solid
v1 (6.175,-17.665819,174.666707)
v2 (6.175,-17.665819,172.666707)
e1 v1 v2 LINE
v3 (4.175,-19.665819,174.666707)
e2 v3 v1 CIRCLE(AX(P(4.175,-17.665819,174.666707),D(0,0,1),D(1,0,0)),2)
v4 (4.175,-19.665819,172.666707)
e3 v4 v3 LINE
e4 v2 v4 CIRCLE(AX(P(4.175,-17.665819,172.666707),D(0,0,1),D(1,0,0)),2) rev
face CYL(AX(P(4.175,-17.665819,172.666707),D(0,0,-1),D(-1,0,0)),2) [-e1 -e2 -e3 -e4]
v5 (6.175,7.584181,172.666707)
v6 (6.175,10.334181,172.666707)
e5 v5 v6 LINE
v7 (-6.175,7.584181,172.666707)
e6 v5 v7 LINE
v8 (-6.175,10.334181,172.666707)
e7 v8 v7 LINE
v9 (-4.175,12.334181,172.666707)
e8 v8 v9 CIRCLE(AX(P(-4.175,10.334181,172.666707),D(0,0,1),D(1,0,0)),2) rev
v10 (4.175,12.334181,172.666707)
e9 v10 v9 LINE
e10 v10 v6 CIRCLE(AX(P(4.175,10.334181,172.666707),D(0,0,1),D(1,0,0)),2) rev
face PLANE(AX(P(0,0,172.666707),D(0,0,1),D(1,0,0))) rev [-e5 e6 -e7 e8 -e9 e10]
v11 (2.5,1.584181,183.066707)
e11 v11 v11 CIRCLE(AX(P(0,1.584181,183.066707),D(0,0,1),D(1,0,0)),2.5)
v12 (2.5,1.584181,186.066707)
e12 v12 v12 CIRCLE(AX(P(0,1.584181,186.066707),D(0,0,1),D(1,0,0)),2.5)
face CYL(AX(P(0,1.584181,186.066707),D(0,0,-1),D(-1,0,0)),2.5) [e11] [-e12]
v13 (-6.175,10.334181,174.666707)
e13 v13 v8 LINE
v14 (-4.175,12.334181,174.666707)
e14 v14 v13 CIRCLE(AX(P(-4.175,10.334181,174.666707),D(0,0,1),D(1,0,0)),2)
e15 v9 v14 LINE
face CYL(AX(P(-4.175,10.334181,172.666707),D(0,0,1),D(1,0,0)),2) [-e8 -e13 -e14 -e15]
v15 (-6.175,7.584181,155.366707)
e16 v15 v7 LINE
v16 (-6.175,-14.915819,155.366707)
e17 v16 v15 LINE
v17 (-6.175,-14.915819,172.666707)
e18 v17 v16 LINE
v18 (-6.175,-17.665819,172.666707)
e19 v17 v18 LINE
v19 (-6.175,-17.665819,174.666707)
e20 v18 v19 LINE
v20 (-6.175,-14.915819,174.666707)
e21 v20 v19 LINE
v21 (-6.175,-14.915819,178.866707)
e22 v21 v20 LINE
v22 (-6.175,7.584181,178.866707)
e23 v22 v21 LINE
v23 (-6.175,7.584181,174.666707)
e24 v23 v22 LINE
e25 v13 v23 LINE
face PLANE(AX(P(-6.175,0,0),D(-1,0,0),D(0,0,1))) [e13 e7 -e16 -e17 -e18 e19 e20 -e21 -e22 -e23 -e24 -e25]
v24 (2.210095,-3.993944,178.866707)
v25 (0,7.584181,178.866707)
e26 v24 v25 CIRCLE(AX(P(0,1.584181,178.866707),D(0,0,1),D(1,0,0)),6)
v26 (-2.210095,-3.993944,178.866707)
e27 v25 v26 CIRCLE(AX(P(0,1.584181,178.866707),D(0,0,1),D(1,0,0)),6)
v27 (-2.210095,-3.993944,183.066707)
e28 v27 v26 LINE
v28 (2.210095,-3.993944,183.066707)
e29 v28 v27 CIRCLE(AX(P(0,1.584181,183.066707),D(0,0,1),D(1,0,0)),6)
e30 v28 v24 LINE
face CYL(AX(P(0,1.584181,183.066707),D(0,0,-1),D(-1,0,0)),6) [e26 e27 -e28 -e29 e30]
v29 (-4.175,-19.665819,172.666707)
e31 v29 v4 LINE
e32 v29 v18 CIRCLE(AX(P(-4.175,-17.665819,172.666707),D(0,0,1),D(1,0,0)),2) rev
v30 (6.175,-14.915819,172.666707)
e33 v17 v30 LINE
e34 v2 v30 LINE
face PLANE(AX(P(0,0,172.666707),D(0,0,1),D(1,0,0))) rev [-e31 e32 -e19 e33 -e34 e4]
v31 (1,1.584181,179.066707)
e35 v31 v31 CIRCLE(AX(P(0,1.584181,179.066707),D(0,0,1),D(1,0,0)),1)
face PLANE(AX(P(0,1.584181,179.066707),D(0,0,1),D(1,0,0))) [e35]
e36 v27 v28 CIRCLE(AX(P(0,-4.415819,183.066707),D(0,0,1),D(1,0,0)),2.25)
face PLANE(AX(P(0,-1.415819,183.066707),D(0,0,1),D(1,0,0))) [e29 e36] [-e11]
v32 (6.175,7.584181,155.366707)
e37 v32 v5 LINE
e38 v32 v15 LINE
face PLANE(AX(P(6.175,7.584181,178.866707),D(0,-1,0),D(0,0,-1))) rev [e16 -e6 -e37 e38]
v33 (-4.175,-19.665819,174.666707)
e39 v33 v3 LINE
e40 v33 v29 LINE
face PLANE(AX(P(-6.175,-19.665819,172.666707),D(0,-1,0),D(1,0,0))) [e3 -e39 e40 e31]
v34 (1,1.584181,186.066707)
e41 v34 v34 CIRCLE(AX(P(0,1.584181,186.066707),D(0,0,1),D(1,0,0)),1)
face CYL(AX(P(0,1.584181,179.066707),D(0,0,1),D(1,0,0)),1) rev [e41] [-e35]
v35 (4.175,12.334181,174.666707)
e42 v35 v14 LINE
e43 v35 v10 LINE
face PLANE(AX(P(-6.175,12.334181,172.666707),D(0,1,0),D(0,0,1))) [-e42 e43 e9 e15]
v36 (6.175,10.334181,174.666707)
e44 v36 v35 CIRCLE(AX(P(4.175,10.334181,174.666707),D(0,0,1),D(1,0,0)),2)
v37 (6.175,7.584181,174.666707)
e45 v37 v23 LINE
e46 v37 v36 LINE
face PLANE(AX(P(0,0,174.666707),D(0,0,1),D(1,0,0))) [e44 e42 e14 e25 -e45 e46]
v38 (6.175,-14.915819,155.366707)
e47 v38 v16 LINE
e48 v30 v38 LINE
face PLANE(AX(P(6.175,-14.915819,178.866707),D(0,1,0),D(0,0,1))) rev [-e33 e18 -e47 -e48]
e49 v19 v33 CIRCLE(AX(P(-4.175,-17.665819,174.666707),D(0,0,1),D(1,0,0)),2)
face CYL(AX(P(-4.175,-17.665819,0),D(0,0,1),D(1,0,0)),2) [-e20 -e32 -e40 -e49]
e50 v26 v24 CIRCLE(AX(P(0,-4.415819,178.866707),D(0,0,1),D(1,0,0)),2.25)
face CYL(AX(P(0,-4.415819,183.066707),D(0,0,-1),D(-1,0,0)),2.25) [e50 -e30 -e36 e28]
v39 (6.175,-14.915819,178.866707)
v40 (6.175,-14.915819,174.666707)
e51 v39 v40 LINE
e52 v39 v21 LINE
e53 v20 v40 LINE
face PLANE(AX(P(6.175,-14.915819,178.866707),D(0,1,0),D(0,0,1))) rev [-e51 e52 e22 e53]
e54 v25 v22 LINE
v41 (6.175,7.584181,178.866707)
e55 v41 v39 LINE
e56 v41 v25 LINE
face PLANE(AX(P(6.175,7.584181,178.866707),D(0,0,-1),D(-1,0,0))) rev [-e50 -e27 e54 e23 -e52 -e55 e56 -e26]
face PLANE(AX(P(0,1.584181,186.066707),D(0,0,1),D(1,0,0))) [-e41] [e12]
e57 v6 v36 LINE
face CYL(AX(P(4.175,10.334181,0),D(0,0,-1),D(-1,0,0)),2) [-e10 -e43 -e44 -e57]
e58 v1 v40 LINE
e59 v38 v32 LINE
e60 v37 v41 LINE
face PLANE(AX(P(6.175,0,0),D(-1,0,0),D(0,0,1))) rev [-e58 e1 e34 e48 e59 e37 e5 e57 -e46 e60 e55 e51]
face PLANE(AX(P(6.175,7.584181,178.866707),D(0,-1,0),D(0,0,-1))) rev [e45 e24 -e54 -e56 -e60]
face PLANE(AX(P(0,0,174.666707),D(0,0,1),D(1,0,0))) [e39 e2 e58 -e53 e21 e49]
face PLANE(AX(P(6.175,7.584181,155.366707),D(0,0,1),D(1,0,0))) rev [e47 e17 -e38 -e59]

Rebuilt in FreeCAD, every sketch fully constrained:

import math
import FreeCAD as App
import Part
import Sketcher
from FreeCAD import Vector
Q = App.Units.Quantity


def edges_at(feature, points):
    """Names of the edges that pass closest to the given points."""
    edges = feature.Shape.Edges
    near = lambda p: min(range(len(edges)), key=lambda i: edges[i].distToShape(Part.Vertex(*p))[0])
    return sorted({f"Edge{near(p) + 1}" for p in points})


def add_polygon(sketch, points):
    """Adds a closed chain of lines whose ends are joined by coincident constraints."""
    first, n = sketch.GeometryCount, len(points)
    for a, b in zip(points, points[1:] + points[:1]):
        sketch.addGeometry(Part.LineSegment(App.Vector(*a, 0), App.Vector(*b, 0)), False)
    for i in range(n):
        sketch.addConstraint(Sketcher.Constraint("Coincident", first + i, 2, first + (i + 1) % n, 1))

doc = App.newDocument("Part")
body = doc.addObject("PartDesign::Body", "Body")

sketch1 = body.newObject("Sketcher::SketchObject", "Sketch")
sketch1.AttachmentSupport = (doc.getObject("YZ_Plane"), [""])
sketch1.MapMode = "FlatFace"
add_polygon(sketch1, [(-14.915819, 178.866707), (-14.915819, 155.366707), (7.584181, 155.366707), (7.584181, 178.866707)])
sketch1.addConstraint([
    Sketcher.Constraint("Vertical", 0),
    Sketcher.Constraint("Horizontal", 1),
    Sketcher.Constraint("Vertical", 2),
    Sketcher.Constraint("Horizontal", 3),
    Sketcher.Constraint("DistanceX", 1, 1, 1, 2, Q("22.5 mm")),
    Sketcher.Constraint("DistanceY", 0, 2, 0, 1, Q("23.5 mm")),
    Sketcher.Constraint("DistanceX", 0, 2, -1, 1, Q("14.915819 mm")),
    Sketcher.Constraint("DistanceY", -1, 1, 0, 2, Q("155.366707 mm")),
])
pad1 = body.newObject("PartDesign::Pad", "Pad")
pad1.Profile = sketch1
pad1.Length = 12.35
pad1.Midplane = True

sketch2 = body.newObject("Sketcher::SketchObject", "Sketch001")
sketch2.AttachmentSupport = (doc.getObject("XY_Plane"), [""])
sketch2.MapMode = "FlatFace"
sketch2.AttachmentOffset = App.Placement(Vector(0, 0, 174.666707), App.Rotation())
add_polygon(sketch2, [(-6.175, 12.334181), (-6.175, -19.665819), (6.175, -19.665819), (6.175, 12.334181)])
sketch2.addConstraint([
    Sketcher.Constraint("Vertical", 0),
    Sketcher.Constraint("Horizontal", 1),
    Sketcher.Constraint("Vertical", 2),
    Sketcher.Constraint("Horizontal", 3),
    Sketcher.Constraint("DistanceY", 0, 2, 0, 1, Q("32 mm")),
    Sketcher.Constraint("DistanceX", 1, 1, 1, 2, Q("12.35 mm")),
    Sketcher.Constraint("DistanceX", 0, 2, -1, 1, Q("6.175 mm")),
    Sketcher.Constraint("DistanceY", 0, 2, -1, 1, Q("19.665819 mm")),
])
pad2 = body.newObject("PartDesign::Pad", "Pad001")
pad2.Profile = sketch2
pad2.Length = 2
pad2.Reversed = True

sketch3 = body.newObject("Sketcher::SketchObject", "Sketch002")
sketch3.AttachmentSupport = (doc.getObject("XY_Plane"), [""])
sketch3.MapMode = "FlatFace"
sketch3.AttachmentOffset = App.Placement(Vector(0, 0, 178.866707), App.Rotation())
sketch3.addGeometry([
    Part.ArcOfCircle(Part.Circle(Vector(0, 1.584181, 0), Vector(0, 0, 1), 6), math.radians(-68.386154), math.radians(248.386154)),
    Part.ArcOfCircle(Part.Circle(Vector(0, -4.415819, 0), Vector(0, 0, 1), 2.25), math.radians(169.193077), math.radians(370.806923)),
], False)
sketch3.addConstraint([
    Sketcher.Constraint("Coincident", 0, 1, 1, 2),
    Sketcher.Constraint("Coincident", 1, 1, 0, 2),
    Sketcher.Constraint("Symmetric", 0, 1, 1, 1, -2),
    Sketcher.Constraint("Radius", 0, Q("6 mm")),
    Sketcher.Constraint("Radius", 1, Q("2.25 mm")),
    Sketcher.Constraint("DistanceY", 1, 3, 0, 3, Q("6 mm")),
    Sketcher.Constraint("DistanceY", -1, 1, 0, 3, Q("1.584181 mm")),
])
pad3 = body.newObject("PartDesign::Pad", "Pad002")
pad3.Profile = sketch3
pad3.Length = 4.2

sketch4 = body.newObject("Sketcher::SketchObject", "Sketch003")
sketch4.AttachmentSupport = (doc.getObject("XY_Plane"), [""])
sketch4.MapMode = "FlatFace"
sketch4.AttachmentOffset = App.Placement(Vector(0, 0, 183.066707), App.Rotation())
sketch4.addGeometry(Part.Circle(Vector(0, 1.584181, 0), Vector(0, 0, 1), 2.5), False)
sketch4.addConstraint([
    Sketcher.Constraint("PointOnObject", 0, 3, -2),
    Sketcher.Constraint("Diameter", 0, Q("5 mm")),
    Sketcher.Constraint("DistanceY", -1, 1, 0, 3, Q("1.584181 mm")),
])
pocket1 = body.newObject("PartDesign::Pocket", "Pocket")
pocket1.Profile = sketch4
pocket1.Length = 4.2
doc.recompute()

fillet = body.newObject("PartDesign::Fillet", "Fillet")
fillet.Base = (pocket1, edges_at(pocket1, [
    (-6.175, -19.666, 173.667),
    (6.175, 12.334, 173.667),
    (-6.175, 12.334, 173.667),
    (6.175, -19.666, 173.667),
]))
fillet.Radius = 2

sketch5 = body.newObject("Sketcher::SketchObject", "Sketch004")
sketch5.AttachmentSupport = (doc.getObject("XY_Plane"), [""])
sketch5.MapMode = "FlatFace"
sketch5.AttachmentOffset = App.Placement(Vector(0, 0, 178.866707), App.Rotation())
sketch5.addGeometry(Part.Circle(Vector(0, 1.584181, 0), Vector(0, 0, 1), 2.5), False)
sketch5.addConstraint([
    Sketcher.Constraint("PointOnObject", 0, 3, -2),
    Sketcher.Constraint("Diameter", 0, Q("5 mm")),
    Sketcher.Constraint("DistanceY", -1, 1, 0, 3, Q("1.584181 mm")),
])
pad4 = body.newObject("PartDesign::Pad", "Pad003")
pad4.Profile = sketch5
pad4.Length = 7.2

sketch6 = body.newObject("Sketcher::SketchObject", "Sketch005")
sketch6.AttachmentSupport = (doc.getObject("XY_Plane"), [""])
sketch6.MapMode = "FlatFace"
sketch6.AttachmentOffset = App.Placement(Vector(0, 0, 186.066707), App.Rotation())
sketch6.addGeometry(Part.Circle(Vector(0, 1.584181, 0), Vector(0, 0, 1), 1), False)
sketch6.addConstraint([
    Sketcher.Constraint("PointOnObject", 0, 3, -2),
    Sketcher.Constraint("Diameter", 0, Q("2 mm")),
    Sketcher.Constraint("DistanceY", -1, 1, 0, 3, Q("1.584181 mm")),
])
pocket2 = body.newObject("PartDesign::Pocket", "Pocket001")
pocket2.Profile = sketch6
pocket2.Length = 7

doc.recompute()
